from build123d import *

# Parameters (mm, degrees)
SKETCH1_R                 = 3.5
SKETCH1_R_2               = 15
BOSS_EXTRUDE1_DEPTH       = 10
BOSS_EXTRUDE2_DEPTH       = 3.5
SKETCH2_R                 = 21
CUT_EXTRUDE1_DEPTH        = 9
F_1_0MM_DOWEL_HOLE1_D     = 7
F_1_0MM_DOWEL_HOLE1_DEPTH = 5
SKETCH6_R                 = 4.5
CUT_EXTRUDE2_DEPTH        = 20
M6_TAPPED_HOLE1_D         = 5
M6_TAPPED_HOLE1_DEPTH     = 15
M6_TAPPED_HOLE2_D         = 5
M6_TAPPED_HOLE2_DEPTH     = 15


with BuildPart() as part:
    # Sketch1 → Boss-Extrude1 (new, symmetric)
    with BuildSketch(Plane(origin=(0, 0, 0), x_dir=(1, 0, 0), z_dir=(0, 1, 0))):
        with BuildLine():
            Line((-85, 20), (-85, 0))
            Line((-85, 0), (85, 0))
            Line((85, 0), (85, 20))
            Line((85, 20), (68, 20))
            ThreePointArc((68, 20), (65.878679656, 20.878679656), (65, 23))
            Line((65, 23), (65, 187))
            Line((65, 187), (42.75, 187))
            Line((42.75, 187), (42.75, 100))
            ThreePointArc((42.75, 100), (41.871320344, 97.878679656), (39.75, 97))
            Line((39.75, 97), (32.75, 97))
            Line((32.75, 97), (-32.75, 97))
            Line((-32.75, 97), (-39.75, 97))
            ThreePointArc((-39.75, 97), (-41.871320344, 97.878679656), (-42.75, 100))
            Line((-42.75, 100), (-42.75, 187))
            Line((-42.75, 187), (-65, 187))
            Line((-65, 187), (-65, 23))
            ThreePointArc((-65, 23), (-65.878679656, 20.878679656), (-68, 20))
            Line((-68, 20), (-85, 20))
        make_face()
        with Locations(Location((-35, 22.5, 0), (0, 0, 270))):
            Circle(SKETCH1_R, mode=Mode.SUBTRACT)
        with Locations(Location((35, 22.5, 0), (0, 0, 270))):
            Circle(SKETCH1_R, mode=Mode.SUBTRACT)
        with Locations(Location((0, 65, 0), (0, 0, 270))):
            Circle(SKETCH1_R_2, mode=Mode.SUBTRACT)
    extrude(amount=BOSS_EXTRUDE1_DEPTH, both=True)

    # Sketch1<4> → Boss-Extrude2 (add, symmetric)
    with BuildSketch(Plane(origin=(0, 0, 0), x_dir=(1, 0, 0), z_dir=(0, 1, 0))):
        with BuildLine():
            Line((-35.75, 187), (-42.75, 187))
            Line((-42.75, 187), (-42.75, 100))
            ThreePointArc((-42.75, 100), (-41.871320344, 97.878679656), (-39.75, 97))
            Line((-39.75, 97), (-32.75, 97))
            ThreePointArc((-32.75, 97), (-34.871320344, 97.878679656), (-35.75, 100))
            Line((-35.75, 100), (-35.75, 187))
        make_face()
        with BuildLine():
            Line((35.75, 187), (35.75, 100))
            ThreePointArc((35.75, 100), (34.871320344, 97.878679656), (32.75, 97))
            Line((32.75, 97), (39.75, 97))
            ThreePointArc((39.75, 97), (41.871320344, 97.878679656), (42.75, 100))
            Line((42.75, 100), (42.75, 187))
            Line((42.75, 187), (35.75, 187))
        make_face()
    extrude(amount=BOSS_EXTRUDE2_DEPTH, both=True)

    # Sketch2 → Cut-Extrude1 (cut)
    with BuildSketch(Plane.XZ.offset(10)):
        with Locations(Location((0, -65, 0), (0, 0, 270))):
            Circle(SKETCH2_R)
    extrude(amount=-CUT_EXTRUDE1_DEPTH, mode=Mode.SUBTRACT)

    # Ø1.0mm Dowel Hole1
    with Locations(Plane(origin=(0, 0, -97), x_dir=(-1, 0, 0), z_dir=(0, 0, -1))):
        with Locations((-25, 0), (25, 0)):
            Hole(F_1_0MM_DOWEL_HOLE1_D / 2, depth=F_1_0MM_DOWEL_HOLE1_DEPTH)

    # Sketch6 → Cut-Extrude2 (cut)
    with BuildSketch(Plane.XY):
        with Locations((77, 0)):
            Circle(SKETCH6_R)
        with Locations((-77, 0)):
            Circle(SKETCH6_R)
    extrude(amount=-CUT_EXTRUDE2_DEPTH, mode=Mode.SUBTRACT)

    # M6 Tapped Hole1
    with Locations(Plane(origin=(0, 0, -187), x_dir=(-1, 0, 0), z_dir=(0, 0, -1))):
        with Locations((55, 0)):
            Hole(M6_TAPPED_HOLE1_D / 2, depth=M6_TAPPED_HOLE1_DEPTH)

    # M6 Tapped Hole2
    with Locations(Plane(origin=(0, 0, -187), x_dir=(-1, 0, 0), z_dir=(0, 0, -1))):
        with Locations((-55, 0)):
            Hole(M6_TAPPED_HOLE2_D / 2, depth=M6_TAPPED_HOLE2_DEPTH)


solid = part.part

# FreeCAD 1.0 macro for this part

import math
import FreeCAD as App
import Part
import Sketcher

V = App.Vector
Q = App.Units.Quantity

doc = App.newDocument("Part")
params = doc.addObject("Spreadsheet::Sheet", "Params")
for row, (alias, value) in enumerate([
    ("sketch1_diameter", "7 mm"),
    ("sketch1_diameter2", "30 mm"),
    ("sketch1_radius", "3 mm"),
    ("sketch1_width", "170 mm"),
    ("sketch1_width2", "17 mm"),
    ("pad1_length", "20 mm"),
    ("sketch2_radius", "3 mm"),
    ("sketch2_width", "7 mm"),
    ("sketch2_height", "87 mm"),
    ("pad2_length", "7 mm"),
    ("sketch3_diameter", "42 mm"),
    ("pocket1_length", "9 mm"),
    ("sketch4_diameter", "7 mm"),
    ("hole_diameter", "7 mm"),
    ("hole_depth", "5 mm"),
    ("sketch5_diameter", "9 mm"),
    ("pocket2_length", "20 mm"),
    ("sketch6_diameter", "5 mm"),
    ("hole2_diameter", "5 mm"),
    ("hole2_depth", "15 mm"),
    ("sketch7_diameter", "5 mm"),
    ("hole3_diameter", "5 mm"),
    ("hole3_depth", "15 mm"),
], start=1):
    params.set(f"A{row}", alias)
    params.set(f"B{row}", "=" + value)
    params.setAlias(f"B{row}", alias)

body = doc.addObject("PartDesign::Body", "Body")

# Sketch on XZ plane
sketch1 = doc.addObject("Sketcher::SketchObject", "Sketch")
body.addObject(sketch1)
sketch1.AttachmentSupport = (doc.XZ_Plane, [""])
sketch1.MapMode = "FlatFace"
sketch1.addGeometry([
    Part.LineSegment(V(-85, -20, 0), V(-85, 0, 0)),  # 0
    Part.LineSegment(V(-85, 0, 0), V(85, 0, 0)),  # 1
    Part.LineSegment(V(85, 0, 0), V(85, -20, 0)),  # 2
    Part.LineSegment(V(85, -20, 0), V(68, -20, 0)),  # 3
    Part.ArcOfCircle(Part.Circle(V(68, -23, 0), V(0, 0, 1), 3), math.radians(90), math.radians(180)),  # 4
    Part.LineSegment(V(65, -23, 0), V(65, -187, 0)),  # 5
    Part.LineSegment(V(65, -187, 0), V(42.8, -187, 0)),  # 6
    Part.LineSegment(V(42.8, -187, 0), V(42.8, -100, 0)),  # 7
    Part.ArcOfCircle(Part.Circle(V(39.8, -100, 0), V(0, 0, 1), 3), math.radians(0), math.radians(90)),  # 8
    Part.LineSegment(V(39.8, -97, 0), V(-39.8, -97, 0)),  # 9
    Part.ArcOfCircle(Part.Circle(V(-39.8, -100, 0), V(0, 0, 1), 3), math.radians(90), math.radians(180)),  # 10
    Part.LineSegment(V(-42.8, -100, 0), V(-42.8, -187, 0)),  # 11
    Part.LineSegment(V(-42.8, -187, 0), V(-65, -187, 0)),  # 12
    Part.LineSegment(V(-65, -187, 0), V(-65, -23, 0)),  # 13
    Part.ArcOfCircle(Part.Circle(V(-68, -23, 0), V(0, 0, 1), 3), math.radians(0), math.radians(90)),  # 14
    Part.LineSegment(V(-68, -20, 0), V(-85, -20, 0)),  # 15
    Part.Circle(V(-35, -22.5, 0), V(0, 0, 1), 3.5),  # 16
    Part.Circle(V(35, -22.5, 0), V(0, 0, 1), 3.5),  # 17
    Part.Circle(V(0, -65, 0), V(0, 0, 1), 15),  # 18
], False)
sketch1.addConstraint([
    Sketcher.Constraint("Coincident", 0, 2, 1, 1),
    Sketcher.Constraint("Coincident", 1, 2, 2, 1),
    Sketcher.Constraint("Coincident", 2, 2, 3, 1),
    Sketcher.Constraint("Tangent", 3, 2, 4, 1),
    Sketcher.Constraint("Tangent", 4, 2, 5, 1),
    Sketcher.Constraint("Coincident", 5, 2, 6, 1),
    Sketcher.Constraint("Coincident", 6, 2, 7, 1),
    Sketcher.Constraint("Tangent", 7, 2, 8, 1),
    Sketcher.Constraint("Tangent", 8, 2, 9, 1),
    Sketcher.Constraint("Tangent", 9, 2, 10, 1),
    Sketcher.Constraint("Tangent", 10, 2, 11, 1),
    Sketcher.Constraint("Coincident", 11, 2, 12, 1),
    Sketcher.Constraint("Coincident", 12, 2, 13, 1),
    Sketcher.Constraint("Tangent", 13, 2, 14, 1),
    Sketcher.Constraint("Tangent", 14, 2, 15, 1),
    Sketcher.Constraint("Coincident", 15, 2, 0, 1),
    Sketcher.Constraint("Vertical", 0),
    Sketcher.Constraint("Horizontal", 1),
    Sketcher.Constraint("Vertical", 2),
    Sketcher.Constraint("Horizontal", 3),
    Sketcher.Constraint("Vertical", 5),
    Sketcher.Constraint("Horizontal", 6),
    Sketcher.Constraint("Vertical", 7),
    Sketcher.Constraint("Horizontal", 9),
    Sketcher.Constraint("Vertical", 11),
    Sketcher.Constraint("Horizontal", 12),
    Sketcher.Constraint("Vertical", 13),
    Sketcher.Constraint("Horizontal", 15),
    Sketcher.Constraint("Equal", 4, 8),
    Sketcher.Constraint("Equal", 8, 10),
    Sketcher.Constraint("Equal", 10, 14),
    Sketcher.Constraint("Equal", 16, 17),
    Sketcher.Constraint("Symmetric", 0, 2, 1, 2, -1, 1),
    Sketcher.Constraint("Symmetric", 4, 3, 14, 3, -2),
    Sketcher.Constraint("Symmetric", 16, 3, 17, 3, -2),
    Sketcher.Constraint("Symmetric", 6, 2, 11, 2, -2),
    Sketcher.Constraint("PointOnObject", 18, 3, -2),
    Sketcher.Constraint("Diameter", 16, Q("7 mm")),
    Sketcher.Constraint("Diameter", 18, Q("30 mm")),
    Sketcher.Constraint("Radius", 4, Q("3 mm")),
    Sketcher.Constraint("DistanceX", 1, 1, 1, 2, Q("170 mm")),
    Sketcher.Constraint("DistanceX", 3, 2, 3, 1, Q("17 mm")),
    Sketcher.Constraint("DistanceY", 0, 1, 0, 2, Q("20 mm")),
    Sketcher.Constraint("DistanceY", 5, 2, 5, 1, Q("164 mm")),
    Sketcher.Constraint("DistanceY", 7, 1, 7, 2, Q("87 mm")),
    Sketcher.Constraint("DistanceX", 9, 2, 9, 1, Q("79.5 mm")),
    Sketcher.Constraint("DistanceX", 16, 3, -1, 1, Q("35 mm")),
    Sketcher.Constraint("DistanceY", 18, 3, -1, 1, Q("65 mm")),
    Sketcher.Constraint("DistanceY", 16, 3, -1, 1, Q("22.5 mm")),
])
sketch1.setExpression("Constraints[37]", "Params.sketch1_diameter")
sketch1.setExpression("Constraints[38]", "Params.sketch1_diameter2")
sketch1.setExpression("Constraints[39]", "Params.sketch1_radius")
sketch1.setExpression("Constraints[40]", "Params.sketch1_width")
sketch1.setExpression("Constraints[41]", "Params.sketch1_width2")
pad1 = doc.addObject("PartDesign::Pad", "Pad")
body.addObject(pad1)
pad1.Profile = sketch1
pad1.setExpression("Length", "Params.pad1_length")
pad1.Midplane = True

# Sketch on XZ plane
sketch2 = doc.addObject("Sketcher::SketchObject", "Sketch001")
body.addObject(sketch2)
sketch2.AttachmentSupport = (doc.XZ_Plane, [""])
sketch2.MapMode = "FlatFace"
sketch2.addGeometry([
    Part.LineSegment(V(-35.8, -187, 0), V(-42.8, -187, 0)),  # 0
    Part.LineSegment(V(-42.8, -187, 0), V(-42.8, -100, 0)),  # 1
    Part.ArcOfCircle(Part.Circle(V(-39.8, -100, 0), V(0, 0, 1), 3), math.radians(90), math.radians(180)),  # 2
    Part.LineSegment(V(-39.8, -97, 0), V(-32.8, -97, 0)),  # 3
    Part.ArcOfCircle(Part.Circle(V(-32.8, -100, 0), V(0, 0, 1), 3), math.radians(90), math.radians(180)),  # 4
    Part.LineSegment(V(-35.8, -100, 0), V(-35.8, -187, 0)),  # 5
    Part.LineSegment(V(35.8, -187, 0), V(35.8, -100, 0)),  # 6
    Part.ArcOfCircle(Part.Circle(V(32.8, -100, 0), V(0, 0, 1), 3), math.radians(0), math.radians(90)),  # 7
    Part.LineSegment(V(32.8, -97, 0), V(39.8, -97, 0)),  # 8
    Part.ArcOfCircle(Part.Circle(V(39.8, -100, 0), V(0, 0, 1), 3), math.radians(0), math.radians(90)),  # 9
    Part.LineSegment(V(42.8, -100, 0), V(42.8, -187, 0)),  # 10
    Part.LineSegment(V(42.8, -187, 0), V(35.8, -187, 0)),  # 11
], False)
sketch2.addConstraint([
    Sketcher.Constraint("Coincident", 0, 2, 1, 1),
    Sketcher.Constraint("Tangent", 1, 2, 2, 2),
    Sketcher.Constraint("Tangent", 2, 1, 3, 1),
    Sketcher.Constraint("Tangent", 3, 2, 4, 1),
    Sketcher.Constraint("Tangent", 4, 2, 5, 1),
    Sketcher.Constraint("Coincident", 5, 2, 0, 1),
    Sketcher.Constraint("Tangent", 6, 2, 7, 1),
    Sketcher.Constraint("Tangent", 7, 2, 8, 1),
    Sketcher.Constraint("Tangent", 8, 2, 9, 2),
    Sketcher.Constraint("Tangent", 9, 1, 10, 1),
    Sketcher.Constraint("Coincident", 10, 2, 11, 1),
    Sketcher.Constraint("Coincident", 11, 2, 6, 1),
    Sketcher.Constraint("Horizontal", 0),
    Sketcher.Constraint("Vertical", 1),
    Sketcher.Constraint("Horizontal", 3),
    Sketcher.Constraint("Vertical", 5),
    Sketcher.Constraint("Vertical", 6),
    Sketcher.Constraint("Horizontal", 8),
    Sketcher.Constraint("Vertical", 10),
    Sketcher.Constraint("Horizontal", 11),
    Sketcher.Constraint("Equal", 2, 4),
    Sketcher.Constraint("Equal", 4, 7),
    Sketcher.Constraint("Equal", 7, 9),
    Sketcher.Constraint("Symmetric", 4, 3, 7, 3, -2),
    Sketcher.Constraint("Symmetric", 0, 2, 10, 2, -2),
    Sketcher.Constraint("Radius", 2, Q("3 mm")),
    Sketcher.Constraint("DistanceX", 0, 2, 0, 1, Q("7 mm")),
    Sketcher.Constraint("DistanceY", 1, 1, 1, 2, Q("87 mm")),
    Sketcher.Constraint("DistanceY", 2, 3, -1, 1, Q("100 mm")),
    Sketcher.Constraint("DistanceX", 4, 3, 7, 3, Q("65.5 mm")),
])
sketch2.setExpression("Constraints[25]", "Params.sketch2_radius")
sketch2.setExpression("Constraints[26]", "Params.sketch2_width")
sketch2.setExpression("Constraints[27]", "Params.sketch2_height")
pad2 = doc.addObject("PartDesign::Pad", "Pad001")
body.addObject(pad2)
pad2.Profile = sketch2
pad2.setExpression("Length", "Params.pad2_length")
pad2.Midplane = True

# Sketch on XZ plane
sketch3 = doc.addObject("Sketcher::SketchObject", "Sketch002")
body.addObject(sketch3)
sketch3.AttachmentSupport = (doc.XZ_Plane, [""])
sketch3.MapMode = "FlatFace"
sketch3.AttachmentOffset = App.Placement(V(0, 0, 10), App.Rotation())
sketch3.addGeometry(Part.Circle(V(0, -65, 0), V(0, 0, 1), 21), False)
sketch3.addConstraint([
    Sketcher.Constraint("PointOnObject", 0, 3, -2),
    Sketcher.Constraint("Diameter", 0, Q("42 mm")),
    Sketcher.Constraint("DistanceY", 0, 3, -1, 1, Q("65 mm")),
])
sketch3.setExpression("Constraints[1]", "Params.sketch3_diameter")
pocket1 = doc.addObject("PartDesign::Pocket", "Pocket")
body.addObject(pocket1)
pocket1.Profile = sketch3
pocket1.setExpression("Length", "Params.pocket1_length")

# Sketch on XY plane
sketch4 = doc.addObject("Sketcher::SketchObject", "Sketch003")
body.addObject(sketch4)
sketch4.AttachmentSupport = (doc.XY_Plane, [""])
sketch4.MapMode = "FlatFace"
sketch4.AttachmentOffset = App.Placement(V(0, 0, -97), App.Rotation())
sketch4.addGeometry([
    Part.Circle(V(25, 0, 0), V(0, 0, 1), 3.5),
    Part.Circle(V(-25, 0, 0), V(0, 0, 1), 3.5),
], False)
sketch4.addConstraint([
    Sketcher.Constraint("Equal", 0, 1),
    Sketcher.Constraint("Symmetric", 0, 3, 1, 3, -1, 1),
    Sketcher.Constraint("PointOnObject", 0, 3, -1),
    Sketcher.Constraint("Diameter", 0, Q("7 mm")),
    Sketcher.Constraint("DistanceX", -1, 1, 0, 3, Q("25 mm")),
])
sketch4.setExpression("Constraints[3]", "Params.sketch4_diameter")
doc.recompute()
hole = doc.addObject("PartDesign::Hole", "Hole")
body.addObject(hole)
hole.Profile = sketch4
hole.ThreadType = "None"
hole.setExpression("Diameter", "Params.hole_diameter")
hole.DepthType = "Dimension"
hole.setExpression("Depth", "Params.hole_depth")
hole.DrillPoint = "Flat"
hole.Reversed = True

# Sketch on XY plane
sketch5 = doc.addObject("Sketcher::SketchObject", "Sketch004")
body.addObject(sketch5)
sketch5.AttachmentSupport = (doc.XY_Plane, [""])
sketch5.MapMode = "FlatFace"
sketch5.addGeometry([
    Part.Circle(V(77, 0, 0), V(0, 0, 1), 4.5),
    Part.Circle(V(-77, 0, 0), V(0, 0, 1), 4.5),
], False)
sketch5.addConstraint([
    Sketcher.Constraint("Equal", 0, 1),
    Sketcher.Constraint("Symmetric", 0, 3, 1, 3, -1, 1),
    Sketcher.Constraint("PointOnObject", 0, 3, -1),
    Sketcher.Constraint("Diameter", 0, Q("9 mm")),
    Sketcher.Constraint("DistanceX", -1, 1, 0, 3, Q("77 mm")),
])
sketch5.setExpression("Constraints[3]", "Params.sketch5_diameter")
pocket2 = doc.addObject("PartDesign::Pocket", "Pocket001")
body.addObject(pocket2)
pocket2.Profile = sketch5
pocket2.setExpression("Length", "Params.pocket2_length")

# Sketch on XY plane
sketch6 = doc.addObject("Sketcher::SketchObject", "Sketch005")
body.addObject(sketch6)
sketch6.AttachmentSupport = (doc.XY_Plane, [""])
sketch6.MapMode = "FlatFace"
sketch6.AttachmentOffset = App.Placement(V(0, 0, -187), App.Rotation())
sketch6.addGeometry(Part.Circle(V(-55, 0, 0), V(0, 0, 1), 2.5), False)
sketch6.addConstraint([
    Sketcher.Constraint("PointOnObject", 0, 3, -1),
    Sketcher.Constraint("Diameter", 0, Q("5 mm")),
    Sketcher.Constraint("DistanceX", 0, 3, -1, 1, Q("55 mm")),
])
sketch6.setExpression("Constraints[1]", "Params.sketch6_diameter")
doc.recompute()
hole2 = doc.addObject("PartDesign::Hole", "Hole001")
body.addObject(hole2)
hole2.Profile = sketch6
hole2.ThreadType = "None"
hole2.setExpression("Diameter", "Params.hole2_diameter")
hole2.DepthType = "Dimension"
hole2.setExpression("Depth", "Params.hole2_depth")
hole2.DrillPoint = "Flat"
hole2.Reversed = True

# Sketch on XY plane
sketch7 = doc.addObject("Sketcher::SketchObject", "Sketch006")
body.addObject(sketch7)
sketch7.AttachmentSupport = (doc.XY_Plane, [""])
sketch7.MapMode = "FlatFace"
sketch7.AttachmentOffset = App.Placement(V(0, 0, -187), App.Rotation())
sketch7.addGeometry(Part.Circle(V(55, 0, 0), V(0, 0, 1), 2.5), False)
sketch7.addConstraint([
    Sketcher.Constraint("PointOnObject", 0, 3, -1),
    Sketcher.Constraint("Diameter", 0, Q("5 mm")),
    Sketcher.Constraint("DistanceX", -1, 1, 0, 3, Q("55 mm")),
])
sketch7.setExpression("Constraints[1]", "Params.sketch7_diameter")
doc.recompute()
hole3 = doc.addObject("PartDesign::Hole", "Hole002")
body.addObject(hole3)
hole3.Profile = sketch7
hole3.ThreadType = "None"
hole3.setExpression("Diameter", "Params.hole3_diameter")
hole3.DepthType = "Dimension"
hole3.setExpression("Depth", "Params.hole3_depth")
hole3.DrillPoint = "Flat"
hole3.Reversed = True

doc.recompute()
